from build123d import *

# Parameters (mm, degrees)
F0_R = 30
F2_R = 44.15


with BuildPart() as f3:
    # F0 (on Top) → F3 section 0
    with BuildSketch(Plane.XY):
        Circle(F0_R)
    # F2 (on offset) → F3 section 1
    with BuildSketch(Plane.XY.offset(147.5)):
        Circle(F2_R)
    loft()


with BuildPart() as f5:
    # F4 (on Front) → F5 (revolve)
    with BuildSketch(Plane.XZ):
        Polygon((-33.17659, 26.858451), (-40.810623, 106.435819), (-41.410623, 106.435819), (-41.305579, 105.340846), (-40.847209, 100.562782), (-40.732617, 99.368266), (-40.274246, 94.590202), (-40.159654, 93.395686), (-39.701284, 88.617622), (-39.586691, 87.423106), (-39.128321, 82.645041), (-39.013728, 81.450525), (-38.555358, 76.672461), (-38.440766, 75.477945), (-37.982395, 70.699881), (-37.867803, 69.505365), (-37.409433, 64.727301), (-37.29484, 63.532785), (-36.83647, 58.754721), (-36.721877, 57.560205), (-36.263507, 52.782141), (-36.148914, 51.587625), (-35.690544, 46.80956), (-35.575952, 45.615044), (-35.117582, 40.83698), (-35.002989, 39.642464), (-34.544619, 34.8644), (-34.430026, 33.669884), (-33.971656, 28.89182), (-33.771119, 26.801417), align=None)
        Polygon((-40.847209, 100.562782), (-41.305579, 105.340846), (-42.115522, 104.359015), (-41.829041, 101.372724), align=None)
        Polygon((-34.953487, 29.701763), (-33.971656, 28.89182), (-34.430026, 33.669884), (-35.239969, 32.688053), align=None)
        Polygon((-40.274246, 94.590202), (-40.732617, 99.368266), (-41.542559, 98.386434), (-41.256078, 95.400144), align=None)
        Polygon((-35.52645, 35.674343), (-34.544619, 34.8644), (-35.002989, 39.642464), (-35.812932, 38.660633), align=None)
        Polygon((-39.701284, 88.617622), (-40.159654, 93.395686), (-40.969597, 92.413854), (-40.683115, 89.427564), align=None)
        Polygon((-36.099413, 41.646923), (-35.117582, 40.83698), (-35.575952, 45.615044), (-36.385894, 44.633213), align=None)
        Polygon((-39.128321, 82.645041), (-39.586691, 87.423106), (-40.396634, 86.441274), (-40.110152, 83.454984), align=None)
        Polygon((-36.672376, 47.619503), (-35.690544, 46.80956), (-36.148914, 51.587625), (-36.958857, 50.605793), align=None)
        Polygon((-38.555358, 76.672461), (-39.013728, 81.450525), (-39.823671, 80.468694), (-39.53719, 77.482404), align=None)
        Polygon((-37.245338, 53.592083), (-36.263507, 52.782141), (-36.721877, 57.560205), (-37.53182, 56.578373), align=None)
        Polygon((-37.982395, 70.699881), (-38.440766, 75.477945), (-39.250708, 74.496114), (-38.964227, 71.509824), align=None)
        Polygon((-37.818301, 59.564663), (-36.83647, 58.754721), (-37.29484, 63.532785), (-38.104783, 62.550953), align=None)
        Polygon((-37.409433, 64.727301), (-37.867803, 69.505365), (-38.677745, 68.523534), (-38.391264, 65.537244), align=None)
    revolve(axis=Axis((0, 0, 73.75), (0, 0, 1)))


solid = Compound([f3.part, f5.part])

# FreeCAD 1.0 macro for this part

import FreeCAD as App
import Part
import Sketcher


def add_polygon(sketch, points):
    """Adds a closed chain of lines whose ends are joined by coincident constraints."""
    first, n = sketch.GeometryCount, len(points)
    for a, b in zip(points, points[1:] + points[:1]):
        sketch.addGeometry(Part.LineSegment(App.Vector(*a, 0), App.Vector(*b, 0)), False)
    for i in range(n):
        sketch.addConstraint(Sketcher.Constraint("Coincident", first + i, 2, first + (i + 1) % n, 1))

doc = App.newDocument("Part")
body = doc.addObject("PartDesign::Body", "Body")

# Sketch on XY plane
sketch1 = body.newObject("Sketcher::SketchObject", "Sketch")
sketch1.AttachmentSupport = (doc.getObject("XY_Plane"), [""])
sketch1.MapMode = "FlatFace"
sketch1.addGeometry(Part.Circle(App.Vector(0, 0, 0), App.Vector(0, 0, 1), 30), False)
sketch1.addConstraint([
    Sketcher.Constraint("Coincident", 0, 3, -1, 1),
    Sketcher.Constraint("Diameter", 0, 60.0),
])

# Sketch on XY plane
sketch2 = body.newObject("Sketcher::SketchObject", "Sketch001")
sketch2.AttachmentSupport = (doc.getObject("XY_Plane"), [""])
sketch2.MapMode = "FlatFace"
sketch2.AttachmentOffset = App.Placement(App.Vector(0, 0, 147.5), App.Rotation())
sketch2.addGeometry(Part.Circle(App.Vector(0, 0, 0), App.Vector(0, 0, 1), 44), False)
sketch2.addConstraint([
    Sketcher.Constraint("Coincident", 0, 3, -1, 1),
    Sketcher.Constraint("Diameter", 0, 88.3),
])

additiveloft = body.newObject("PartDesign::AdditiveLoft", "AdditiveLoft")
additiveloft.Profile = sketch1
additiveloft.Sections = [sketch2]
body2 = doc.addObject("PartDesign::Body", "Body001")

# Sketch on XZ plane
sketch3 = body2.newObject("Sketcher::SketchObject", "Sketch002")
sketch3.AttachmentSupport = (doc.getObject("XZ_Plane001"), [""])
sketch3.MapMode = "FlatFace"
add_polygon(sketch3, [(-33.2, 26.9), (-40.8, 106.4), (-41.4, 106.4), (-41.3, 105.3), (-42.1, 104.4), (-41.8, 101.4), (-40.8, 100.6), (-40.7, 99.4), (-41.5, 98.4), (-41.3, 95.4), (-40.3, 94.6), (-40.2, 93.4), (-41, 92.4), (-40.7, 89.4), (-39.7, 88.6), (-39.6, 87.4), (-40.4, 86.4), (-40.1, 83.5), (-39.1, 82.6), (-39, 81.5), (-39.8, 80.5), (-39.5, 77.5), (-38.6, 76.7), (-38.4, 75.5), (-39.3, 74.5), (-39, 71.5), (-38, 70.7), (-37.9, 69.5), (-38.7, 68.5), (-38.4, 65.5), (-37.4, 64.7), (-37.3, 63.5), (-38.1, 62.6), (-37.8, 59.6), (-36.8, 58.8), (-36.7, 57.6), (-37.5, 56.6), (-37.2, 53.6), (-36.3, 52.8), (-36.1, 51.6), (-37, 50.6), (-36.7, 47.6), (-35.7, 46.8), (-35.6, 45.6), (-36.4, 44.6), (-36.1, 41.6), (-35.1, 40.8), (-35, 39.6), (-35.8, 38.7), (-35.5, 35.7), (-34.5, 34.9), (-34.4, 33.7), (-35.2, 32.7), (-35, 29.7), (-34, 28.9), (-33.8, 26.8)])  # lines 0-55
sketch3.addConstraint([
    Sketcher.Constraint("Horizontal", 1),
    Sketcher.Constraint("Parallel", 0, 2),
    Sketcher.Constraint("Parallel", 2, 4),
    Sketcher.Constraint("Perpendicular", 3, 5),
    Sketcher.Constraint("Parallel", 4, 6),
    Sketcher.Constraint("Perpendicular", 5, 7),
    Sketcher.Constraint("Parallel", 6, 8),
    Sketcher.Constraint("Perpendicular", 7, 9),
    Sketcher.Constraint("Parallel", 8, 10),
    Sketcher.Constraint("Perpendicular", 9, 11),
    Sketcher.Constraint("Parallel", 10, 12),
    Sketcher.Constraint("Perpendicular", 11, 13),
    Sketcher.Constraint("Parallel", 12, 14),
    Sketcher.Constraint("Perpendicular", 13, 15),
    Sketcher.Constraint("Parallel", 14, 16),
    Sketcher.Constraint("Perpendicular", 15, 17),
    Sketcher.Constraint("Parallel", 16, 18),
    Sketcher.Constraint("Perpendicular", 17, 19),
    Sketcher.Constraint("Parallel", 18, 20),
    Sketcher.Constraint("Perpendicular", 19, 21),
    Sketcher.Constraint("Parallel", 20, 22),
    Sketcher.Constraint("Perpendicular", 21, 23),
    Sketcher.Constraint("Parallel", 22, 24),
    Sketcher.Constraint("Perpendicular", 23, 25),
    Sketcher.Constraint("Parallel", 24, 26),
    Sketcher.Constraint("Perpendicular", 25, 27),
    Sketcher.Constraint("Parallel", 26, 28),
    Sketcher.Constraint("Perpendicular", 27, 29),
    Sketcher.Constraint("Parallel", 28, 30),
    Sketcher.Constraint("Perpendicular", 29, 31),
    Sketcher.Constraint("Parallel", 30, 32),
    Sketcher.Constraint("Perpendicular", 31, 33),
    Sketcher.Constraint("Parallel", 32, 34),
    Sketcher.Constraint("Perpendicular", 33, 35),
    Sketcher.Constraint("Parallel", 34, 36),
    Sketcher.Constraint("Perpendicular", 35, 37),
    Sketcher.Constraint("Parallel", 36, 38),
    Sketcher.Constraint("Perpendicular", 37, 39),
    Sketcher.Constraint("Parallel", 38, 40),
    Sketcher.Constraint("Perpendicular", 39, 41),
    Sketcher.Constraint("Parallel", 40, 42),
    Sketcher.Constraint("Perpendicular", 41, 43),
    Sketcher.Constraint("Parallel", 42, 44),
    Sketcher.Constraint("Perpendicular", 43, 45),
    Sketcher.Constraint("Parallel", 44, 46),
    Sketcher.Constraint("Perpendicular", 45, 47),
    Sketcher.Constraint("Parallel", 46, 48),
    Sketcher.Constraint("Perpendicular", 47, 49),
    Sketcher.Constraint("Parallel", 48, 50),
    Sketcher.Constraint("Perpendicular", 49, 51),
    Sketcher.Constraint("Parallel", 50, 52),
    Sketcher.Constraint("Perpendicular", 51, 53),
    Sketcher.Constraint("Parallel", 52, 54),
    Sketcher.Constraint("Perpendicular", 54, 55),
    Sketcher.Constraint("Equal", 3, 5),
    Sketcher.Constraint("Equal", 5, 7),
    Sketcher.Constraint("Equal", 4, 8),
    Sketcher.Constraint("Equal", 7, 9),
    Sketcher.Constraint("Equal", 6, 10),
    Sketcher.Constraint("Equal", 9, 11),
    Sketcher.Constraint("Equal", 8, 12),
    Sketcher.Constraint("Equal", 11, 13),
    Sketcher.Constraint("Equal", 10, 14),
    Sketcher.Constraint("Equal", 13, 15),
    Sketcher.Constraint("Equal", 12, 16),
    Sketcher.Constraint("Equal", 15, 17),
    Sketcher.Constraint("Equal", 14, 18),
    Sketcher.Constraint("Equal", 17, 19),
    Sketcher.Constraint("Equal", 16, 20),
    Sketcher.Constraint("Equal", 19, 21),
    Sketcher.Constraint("Equal", 18, 22),
    Sketcher.Constraint("Equal", 21, 23),
    Sketcher.Constraint("Equal", 20, 24),
    Sketcher.Constraint("Equal", 23, 25),
    Sketcher.Constraint("Equal", 22, 26),
    Sketcher.Constraint("Equal", 25, 27),
    Sketcher.Constraint("Equal", 24, 28),
    Sketcher.Constraint("Equal", 27, 29),
    Sketcher.Constraint("Equal", 26, 30),
    Sketcher.Constraint("Equal", 29, 31),
    Sketcher.Constraint("Equal", 28, 32),
    Sketcher.Constraint("Equal", 31, 33),
    Sketcher.Constraint("Equal", 30, 34),
    Sketcher.Constraint("Equal", 33, 35),
    Sketcher.Constraint("Equal", 32, 36),
    Sketcher.Constraint("Equal", 35, 37),
    Sketcher.Constraint("Equal", 34, 38),
    Sketcher.Constraint("Equal", 37, 39),
    Sketcher.Constraint("Equal", 36, 40),
    Sketcher.Constraint("Equal", 39, 41),
    Sketcher.Constraint("Equal", 38, 42),
    Sketcher.Constraint("Equal", 41, 43),
    Sketcher.Constraint("Equal", 40, 44),
    Sketcher.Constraint("Equal", 43, 45),
    Sketcher.Constraint("Equal", 42, 46),
    Sketcher.Constraint("Equal", 45, 47),
    Sketcher.Constraint("Equal", 44, 48),
    Sketcher.Constraint("Equal", 47, 49),
    Sketcher.Constraint("Equal", 46, 50),
    Sketcher.Constraint("Equal", 49, 51),
    Sketcher.Constraint("Equal", 48, 52),
    Sketcher.Constraint("Equal", 51, 53),
    Sketcher.Constraint("Distance", 4, 3.000001),
    Sketcher.Constraint("DistanceX", 1, 2, 1, 1, 0.6),
    Sketcher.Constraint("Distance", 2, 1.1),
    Sketcher.Constraint("Distance", 6, 1.2),
    Sketcher.Constraint("Distance", 54, 2.1),
    Sketcher.Constraint("DistanceY", -1, 1, 29, 2, 64.727301),
    Sketcher.Constraint("DistanceX", 32, 2, -1, 1, 37.818301),
    Sketcher.Constraint("DistanceY", -1, 1, 49, 2, 34.8644),
    Sketcher.Constraint("DistanceX", 3, 2, 1, 2, 0.704899),
    Sketcher.Constraint("DistanceX", 49, 2, 54, 2, 0.7735),
])
revolution = body2.newObject("PartDesign::Revolution", "Revolution")
revolution.Profile = sketch3
revolution.ReferenceAxis = (sketch3, ["V_Axis"])
revolution.Angle = 360

doc.recompute()
